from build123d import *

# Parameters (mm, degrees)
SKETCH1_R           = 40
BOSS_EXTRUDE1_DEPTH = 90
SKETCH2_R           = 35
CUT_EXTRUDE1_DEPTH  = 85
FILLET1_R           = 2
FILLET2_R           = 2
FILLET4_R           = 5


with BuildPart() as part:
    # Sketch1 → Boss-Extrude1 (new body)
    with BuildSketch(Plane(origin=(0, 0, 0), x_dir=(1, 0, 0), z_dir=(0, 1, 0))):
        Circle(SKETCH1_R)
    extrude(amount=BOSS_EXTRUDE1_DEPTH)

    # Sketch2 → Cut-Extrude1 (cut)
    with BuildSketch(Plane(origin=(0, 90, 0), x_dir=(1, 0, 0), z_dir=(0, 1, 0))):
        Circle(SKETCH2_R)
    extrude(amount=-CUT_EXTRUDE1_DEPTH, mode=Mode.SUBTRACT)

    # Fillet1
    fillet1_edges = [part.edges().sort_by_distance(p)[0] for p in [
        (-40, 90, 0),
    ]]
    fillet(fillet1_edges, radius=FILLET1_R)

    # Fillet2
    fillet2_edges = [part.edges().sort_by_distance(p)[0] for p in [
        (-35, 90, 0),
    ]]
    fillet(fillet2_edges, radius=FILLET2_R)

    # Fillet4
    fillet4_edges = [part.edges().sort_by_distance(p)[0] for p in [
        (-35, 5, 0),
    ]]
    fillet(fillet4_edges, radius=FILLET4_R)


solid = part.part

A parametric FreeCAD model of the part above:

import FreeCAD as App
import Part
import Sketcher

V = App.Vector


def edges_at(feature, points):
    """Names of the edges that pass closest to the given points."""
    edges = feature.Shape.Edges
    near = lambda p: min(range(len(edges)), key=lambda i: edges[i].distToShape(Part.Vertex(*p))[0])
    return sorted({f"Edge{near(p) + 1}" for p in points})

doc = App.newDocument("Part")
body = doc.addObject("PartDesign::Body", "Body")

# Sketch on XZ plane
sketch1 = body.newObject("Sketcher::SketchObject", "Sketch")
sketch1.AttachmentSupport = (doc.getObject("XZ_Plane"), [""])
sketch1.MapMode = "FlatFace"
sketch1.addGeometry(Part.Circle(V(0, 0, 0), V(0, 0, 1), 40), False)
sketch1.addConstraint(Sketcher.Constraint("Coincident", 0, 3, -1, 1))
sketch1.addConstraint(Sketcher.Constraint("Diameter", 0, 80.0))
pad1 = body.newObject("PartDesign::Pad", "Pad")
pad1.Profile = sketch1
pad1.Length = 90
pad1.Reversed = True

# Sketch on XZ plane
sketch2 = body.newObject("Sketcher::SketchObject", "Sketch001")
sketch2.AttachmentSupport = (doc.getObject("XZ_Plane"), [""])
sketch2.MapMode = "FlatFace"
sketch2.AttachmentOffset = App.Placement(V(0, 0, -90), App.Rotation())
sketch2.addGeometry(Part.Circle(V(0, 0, 0), V(0, 0, 1), 35), False)
sketch2.addConstraint(Sketcher.Constraint("Coincident", 0, 3, -1, 1))
sketch2.addConstraint(Sketcher.Constraint("Diameter", 0, 70.0))
pocket1 = body.newObject("PartDesign::Pocket", "Pocket")
pocket1.Profile = sketch2
pocket1.Length = 85
pocket1.Reversed = True
doc.recompute()

fillet = body.newObject("PartDesign::Fillet", "Fillet")
fillet.Base = (pocket1, edges_at(pocket1, [(-40, 90, 0)]))
fillet.Radius = 2
doc.recompute()

fillet2 = body.newObject("PartDesign::Fillet", "Fillet001")
fillet2.Base = (fillet, edges_at(fillet, [(-35, 90, 0)]))
fillet2.Radius = 2
doc.recompute()

fillet3 = body.newObject("PartDesign::Fillet", "Fillet002")
fillet3.Base = (fillet2, edges_at(fillet2, [(-35, 5, 0)]))
fillet3.Radius = 5

doc.recompute()
